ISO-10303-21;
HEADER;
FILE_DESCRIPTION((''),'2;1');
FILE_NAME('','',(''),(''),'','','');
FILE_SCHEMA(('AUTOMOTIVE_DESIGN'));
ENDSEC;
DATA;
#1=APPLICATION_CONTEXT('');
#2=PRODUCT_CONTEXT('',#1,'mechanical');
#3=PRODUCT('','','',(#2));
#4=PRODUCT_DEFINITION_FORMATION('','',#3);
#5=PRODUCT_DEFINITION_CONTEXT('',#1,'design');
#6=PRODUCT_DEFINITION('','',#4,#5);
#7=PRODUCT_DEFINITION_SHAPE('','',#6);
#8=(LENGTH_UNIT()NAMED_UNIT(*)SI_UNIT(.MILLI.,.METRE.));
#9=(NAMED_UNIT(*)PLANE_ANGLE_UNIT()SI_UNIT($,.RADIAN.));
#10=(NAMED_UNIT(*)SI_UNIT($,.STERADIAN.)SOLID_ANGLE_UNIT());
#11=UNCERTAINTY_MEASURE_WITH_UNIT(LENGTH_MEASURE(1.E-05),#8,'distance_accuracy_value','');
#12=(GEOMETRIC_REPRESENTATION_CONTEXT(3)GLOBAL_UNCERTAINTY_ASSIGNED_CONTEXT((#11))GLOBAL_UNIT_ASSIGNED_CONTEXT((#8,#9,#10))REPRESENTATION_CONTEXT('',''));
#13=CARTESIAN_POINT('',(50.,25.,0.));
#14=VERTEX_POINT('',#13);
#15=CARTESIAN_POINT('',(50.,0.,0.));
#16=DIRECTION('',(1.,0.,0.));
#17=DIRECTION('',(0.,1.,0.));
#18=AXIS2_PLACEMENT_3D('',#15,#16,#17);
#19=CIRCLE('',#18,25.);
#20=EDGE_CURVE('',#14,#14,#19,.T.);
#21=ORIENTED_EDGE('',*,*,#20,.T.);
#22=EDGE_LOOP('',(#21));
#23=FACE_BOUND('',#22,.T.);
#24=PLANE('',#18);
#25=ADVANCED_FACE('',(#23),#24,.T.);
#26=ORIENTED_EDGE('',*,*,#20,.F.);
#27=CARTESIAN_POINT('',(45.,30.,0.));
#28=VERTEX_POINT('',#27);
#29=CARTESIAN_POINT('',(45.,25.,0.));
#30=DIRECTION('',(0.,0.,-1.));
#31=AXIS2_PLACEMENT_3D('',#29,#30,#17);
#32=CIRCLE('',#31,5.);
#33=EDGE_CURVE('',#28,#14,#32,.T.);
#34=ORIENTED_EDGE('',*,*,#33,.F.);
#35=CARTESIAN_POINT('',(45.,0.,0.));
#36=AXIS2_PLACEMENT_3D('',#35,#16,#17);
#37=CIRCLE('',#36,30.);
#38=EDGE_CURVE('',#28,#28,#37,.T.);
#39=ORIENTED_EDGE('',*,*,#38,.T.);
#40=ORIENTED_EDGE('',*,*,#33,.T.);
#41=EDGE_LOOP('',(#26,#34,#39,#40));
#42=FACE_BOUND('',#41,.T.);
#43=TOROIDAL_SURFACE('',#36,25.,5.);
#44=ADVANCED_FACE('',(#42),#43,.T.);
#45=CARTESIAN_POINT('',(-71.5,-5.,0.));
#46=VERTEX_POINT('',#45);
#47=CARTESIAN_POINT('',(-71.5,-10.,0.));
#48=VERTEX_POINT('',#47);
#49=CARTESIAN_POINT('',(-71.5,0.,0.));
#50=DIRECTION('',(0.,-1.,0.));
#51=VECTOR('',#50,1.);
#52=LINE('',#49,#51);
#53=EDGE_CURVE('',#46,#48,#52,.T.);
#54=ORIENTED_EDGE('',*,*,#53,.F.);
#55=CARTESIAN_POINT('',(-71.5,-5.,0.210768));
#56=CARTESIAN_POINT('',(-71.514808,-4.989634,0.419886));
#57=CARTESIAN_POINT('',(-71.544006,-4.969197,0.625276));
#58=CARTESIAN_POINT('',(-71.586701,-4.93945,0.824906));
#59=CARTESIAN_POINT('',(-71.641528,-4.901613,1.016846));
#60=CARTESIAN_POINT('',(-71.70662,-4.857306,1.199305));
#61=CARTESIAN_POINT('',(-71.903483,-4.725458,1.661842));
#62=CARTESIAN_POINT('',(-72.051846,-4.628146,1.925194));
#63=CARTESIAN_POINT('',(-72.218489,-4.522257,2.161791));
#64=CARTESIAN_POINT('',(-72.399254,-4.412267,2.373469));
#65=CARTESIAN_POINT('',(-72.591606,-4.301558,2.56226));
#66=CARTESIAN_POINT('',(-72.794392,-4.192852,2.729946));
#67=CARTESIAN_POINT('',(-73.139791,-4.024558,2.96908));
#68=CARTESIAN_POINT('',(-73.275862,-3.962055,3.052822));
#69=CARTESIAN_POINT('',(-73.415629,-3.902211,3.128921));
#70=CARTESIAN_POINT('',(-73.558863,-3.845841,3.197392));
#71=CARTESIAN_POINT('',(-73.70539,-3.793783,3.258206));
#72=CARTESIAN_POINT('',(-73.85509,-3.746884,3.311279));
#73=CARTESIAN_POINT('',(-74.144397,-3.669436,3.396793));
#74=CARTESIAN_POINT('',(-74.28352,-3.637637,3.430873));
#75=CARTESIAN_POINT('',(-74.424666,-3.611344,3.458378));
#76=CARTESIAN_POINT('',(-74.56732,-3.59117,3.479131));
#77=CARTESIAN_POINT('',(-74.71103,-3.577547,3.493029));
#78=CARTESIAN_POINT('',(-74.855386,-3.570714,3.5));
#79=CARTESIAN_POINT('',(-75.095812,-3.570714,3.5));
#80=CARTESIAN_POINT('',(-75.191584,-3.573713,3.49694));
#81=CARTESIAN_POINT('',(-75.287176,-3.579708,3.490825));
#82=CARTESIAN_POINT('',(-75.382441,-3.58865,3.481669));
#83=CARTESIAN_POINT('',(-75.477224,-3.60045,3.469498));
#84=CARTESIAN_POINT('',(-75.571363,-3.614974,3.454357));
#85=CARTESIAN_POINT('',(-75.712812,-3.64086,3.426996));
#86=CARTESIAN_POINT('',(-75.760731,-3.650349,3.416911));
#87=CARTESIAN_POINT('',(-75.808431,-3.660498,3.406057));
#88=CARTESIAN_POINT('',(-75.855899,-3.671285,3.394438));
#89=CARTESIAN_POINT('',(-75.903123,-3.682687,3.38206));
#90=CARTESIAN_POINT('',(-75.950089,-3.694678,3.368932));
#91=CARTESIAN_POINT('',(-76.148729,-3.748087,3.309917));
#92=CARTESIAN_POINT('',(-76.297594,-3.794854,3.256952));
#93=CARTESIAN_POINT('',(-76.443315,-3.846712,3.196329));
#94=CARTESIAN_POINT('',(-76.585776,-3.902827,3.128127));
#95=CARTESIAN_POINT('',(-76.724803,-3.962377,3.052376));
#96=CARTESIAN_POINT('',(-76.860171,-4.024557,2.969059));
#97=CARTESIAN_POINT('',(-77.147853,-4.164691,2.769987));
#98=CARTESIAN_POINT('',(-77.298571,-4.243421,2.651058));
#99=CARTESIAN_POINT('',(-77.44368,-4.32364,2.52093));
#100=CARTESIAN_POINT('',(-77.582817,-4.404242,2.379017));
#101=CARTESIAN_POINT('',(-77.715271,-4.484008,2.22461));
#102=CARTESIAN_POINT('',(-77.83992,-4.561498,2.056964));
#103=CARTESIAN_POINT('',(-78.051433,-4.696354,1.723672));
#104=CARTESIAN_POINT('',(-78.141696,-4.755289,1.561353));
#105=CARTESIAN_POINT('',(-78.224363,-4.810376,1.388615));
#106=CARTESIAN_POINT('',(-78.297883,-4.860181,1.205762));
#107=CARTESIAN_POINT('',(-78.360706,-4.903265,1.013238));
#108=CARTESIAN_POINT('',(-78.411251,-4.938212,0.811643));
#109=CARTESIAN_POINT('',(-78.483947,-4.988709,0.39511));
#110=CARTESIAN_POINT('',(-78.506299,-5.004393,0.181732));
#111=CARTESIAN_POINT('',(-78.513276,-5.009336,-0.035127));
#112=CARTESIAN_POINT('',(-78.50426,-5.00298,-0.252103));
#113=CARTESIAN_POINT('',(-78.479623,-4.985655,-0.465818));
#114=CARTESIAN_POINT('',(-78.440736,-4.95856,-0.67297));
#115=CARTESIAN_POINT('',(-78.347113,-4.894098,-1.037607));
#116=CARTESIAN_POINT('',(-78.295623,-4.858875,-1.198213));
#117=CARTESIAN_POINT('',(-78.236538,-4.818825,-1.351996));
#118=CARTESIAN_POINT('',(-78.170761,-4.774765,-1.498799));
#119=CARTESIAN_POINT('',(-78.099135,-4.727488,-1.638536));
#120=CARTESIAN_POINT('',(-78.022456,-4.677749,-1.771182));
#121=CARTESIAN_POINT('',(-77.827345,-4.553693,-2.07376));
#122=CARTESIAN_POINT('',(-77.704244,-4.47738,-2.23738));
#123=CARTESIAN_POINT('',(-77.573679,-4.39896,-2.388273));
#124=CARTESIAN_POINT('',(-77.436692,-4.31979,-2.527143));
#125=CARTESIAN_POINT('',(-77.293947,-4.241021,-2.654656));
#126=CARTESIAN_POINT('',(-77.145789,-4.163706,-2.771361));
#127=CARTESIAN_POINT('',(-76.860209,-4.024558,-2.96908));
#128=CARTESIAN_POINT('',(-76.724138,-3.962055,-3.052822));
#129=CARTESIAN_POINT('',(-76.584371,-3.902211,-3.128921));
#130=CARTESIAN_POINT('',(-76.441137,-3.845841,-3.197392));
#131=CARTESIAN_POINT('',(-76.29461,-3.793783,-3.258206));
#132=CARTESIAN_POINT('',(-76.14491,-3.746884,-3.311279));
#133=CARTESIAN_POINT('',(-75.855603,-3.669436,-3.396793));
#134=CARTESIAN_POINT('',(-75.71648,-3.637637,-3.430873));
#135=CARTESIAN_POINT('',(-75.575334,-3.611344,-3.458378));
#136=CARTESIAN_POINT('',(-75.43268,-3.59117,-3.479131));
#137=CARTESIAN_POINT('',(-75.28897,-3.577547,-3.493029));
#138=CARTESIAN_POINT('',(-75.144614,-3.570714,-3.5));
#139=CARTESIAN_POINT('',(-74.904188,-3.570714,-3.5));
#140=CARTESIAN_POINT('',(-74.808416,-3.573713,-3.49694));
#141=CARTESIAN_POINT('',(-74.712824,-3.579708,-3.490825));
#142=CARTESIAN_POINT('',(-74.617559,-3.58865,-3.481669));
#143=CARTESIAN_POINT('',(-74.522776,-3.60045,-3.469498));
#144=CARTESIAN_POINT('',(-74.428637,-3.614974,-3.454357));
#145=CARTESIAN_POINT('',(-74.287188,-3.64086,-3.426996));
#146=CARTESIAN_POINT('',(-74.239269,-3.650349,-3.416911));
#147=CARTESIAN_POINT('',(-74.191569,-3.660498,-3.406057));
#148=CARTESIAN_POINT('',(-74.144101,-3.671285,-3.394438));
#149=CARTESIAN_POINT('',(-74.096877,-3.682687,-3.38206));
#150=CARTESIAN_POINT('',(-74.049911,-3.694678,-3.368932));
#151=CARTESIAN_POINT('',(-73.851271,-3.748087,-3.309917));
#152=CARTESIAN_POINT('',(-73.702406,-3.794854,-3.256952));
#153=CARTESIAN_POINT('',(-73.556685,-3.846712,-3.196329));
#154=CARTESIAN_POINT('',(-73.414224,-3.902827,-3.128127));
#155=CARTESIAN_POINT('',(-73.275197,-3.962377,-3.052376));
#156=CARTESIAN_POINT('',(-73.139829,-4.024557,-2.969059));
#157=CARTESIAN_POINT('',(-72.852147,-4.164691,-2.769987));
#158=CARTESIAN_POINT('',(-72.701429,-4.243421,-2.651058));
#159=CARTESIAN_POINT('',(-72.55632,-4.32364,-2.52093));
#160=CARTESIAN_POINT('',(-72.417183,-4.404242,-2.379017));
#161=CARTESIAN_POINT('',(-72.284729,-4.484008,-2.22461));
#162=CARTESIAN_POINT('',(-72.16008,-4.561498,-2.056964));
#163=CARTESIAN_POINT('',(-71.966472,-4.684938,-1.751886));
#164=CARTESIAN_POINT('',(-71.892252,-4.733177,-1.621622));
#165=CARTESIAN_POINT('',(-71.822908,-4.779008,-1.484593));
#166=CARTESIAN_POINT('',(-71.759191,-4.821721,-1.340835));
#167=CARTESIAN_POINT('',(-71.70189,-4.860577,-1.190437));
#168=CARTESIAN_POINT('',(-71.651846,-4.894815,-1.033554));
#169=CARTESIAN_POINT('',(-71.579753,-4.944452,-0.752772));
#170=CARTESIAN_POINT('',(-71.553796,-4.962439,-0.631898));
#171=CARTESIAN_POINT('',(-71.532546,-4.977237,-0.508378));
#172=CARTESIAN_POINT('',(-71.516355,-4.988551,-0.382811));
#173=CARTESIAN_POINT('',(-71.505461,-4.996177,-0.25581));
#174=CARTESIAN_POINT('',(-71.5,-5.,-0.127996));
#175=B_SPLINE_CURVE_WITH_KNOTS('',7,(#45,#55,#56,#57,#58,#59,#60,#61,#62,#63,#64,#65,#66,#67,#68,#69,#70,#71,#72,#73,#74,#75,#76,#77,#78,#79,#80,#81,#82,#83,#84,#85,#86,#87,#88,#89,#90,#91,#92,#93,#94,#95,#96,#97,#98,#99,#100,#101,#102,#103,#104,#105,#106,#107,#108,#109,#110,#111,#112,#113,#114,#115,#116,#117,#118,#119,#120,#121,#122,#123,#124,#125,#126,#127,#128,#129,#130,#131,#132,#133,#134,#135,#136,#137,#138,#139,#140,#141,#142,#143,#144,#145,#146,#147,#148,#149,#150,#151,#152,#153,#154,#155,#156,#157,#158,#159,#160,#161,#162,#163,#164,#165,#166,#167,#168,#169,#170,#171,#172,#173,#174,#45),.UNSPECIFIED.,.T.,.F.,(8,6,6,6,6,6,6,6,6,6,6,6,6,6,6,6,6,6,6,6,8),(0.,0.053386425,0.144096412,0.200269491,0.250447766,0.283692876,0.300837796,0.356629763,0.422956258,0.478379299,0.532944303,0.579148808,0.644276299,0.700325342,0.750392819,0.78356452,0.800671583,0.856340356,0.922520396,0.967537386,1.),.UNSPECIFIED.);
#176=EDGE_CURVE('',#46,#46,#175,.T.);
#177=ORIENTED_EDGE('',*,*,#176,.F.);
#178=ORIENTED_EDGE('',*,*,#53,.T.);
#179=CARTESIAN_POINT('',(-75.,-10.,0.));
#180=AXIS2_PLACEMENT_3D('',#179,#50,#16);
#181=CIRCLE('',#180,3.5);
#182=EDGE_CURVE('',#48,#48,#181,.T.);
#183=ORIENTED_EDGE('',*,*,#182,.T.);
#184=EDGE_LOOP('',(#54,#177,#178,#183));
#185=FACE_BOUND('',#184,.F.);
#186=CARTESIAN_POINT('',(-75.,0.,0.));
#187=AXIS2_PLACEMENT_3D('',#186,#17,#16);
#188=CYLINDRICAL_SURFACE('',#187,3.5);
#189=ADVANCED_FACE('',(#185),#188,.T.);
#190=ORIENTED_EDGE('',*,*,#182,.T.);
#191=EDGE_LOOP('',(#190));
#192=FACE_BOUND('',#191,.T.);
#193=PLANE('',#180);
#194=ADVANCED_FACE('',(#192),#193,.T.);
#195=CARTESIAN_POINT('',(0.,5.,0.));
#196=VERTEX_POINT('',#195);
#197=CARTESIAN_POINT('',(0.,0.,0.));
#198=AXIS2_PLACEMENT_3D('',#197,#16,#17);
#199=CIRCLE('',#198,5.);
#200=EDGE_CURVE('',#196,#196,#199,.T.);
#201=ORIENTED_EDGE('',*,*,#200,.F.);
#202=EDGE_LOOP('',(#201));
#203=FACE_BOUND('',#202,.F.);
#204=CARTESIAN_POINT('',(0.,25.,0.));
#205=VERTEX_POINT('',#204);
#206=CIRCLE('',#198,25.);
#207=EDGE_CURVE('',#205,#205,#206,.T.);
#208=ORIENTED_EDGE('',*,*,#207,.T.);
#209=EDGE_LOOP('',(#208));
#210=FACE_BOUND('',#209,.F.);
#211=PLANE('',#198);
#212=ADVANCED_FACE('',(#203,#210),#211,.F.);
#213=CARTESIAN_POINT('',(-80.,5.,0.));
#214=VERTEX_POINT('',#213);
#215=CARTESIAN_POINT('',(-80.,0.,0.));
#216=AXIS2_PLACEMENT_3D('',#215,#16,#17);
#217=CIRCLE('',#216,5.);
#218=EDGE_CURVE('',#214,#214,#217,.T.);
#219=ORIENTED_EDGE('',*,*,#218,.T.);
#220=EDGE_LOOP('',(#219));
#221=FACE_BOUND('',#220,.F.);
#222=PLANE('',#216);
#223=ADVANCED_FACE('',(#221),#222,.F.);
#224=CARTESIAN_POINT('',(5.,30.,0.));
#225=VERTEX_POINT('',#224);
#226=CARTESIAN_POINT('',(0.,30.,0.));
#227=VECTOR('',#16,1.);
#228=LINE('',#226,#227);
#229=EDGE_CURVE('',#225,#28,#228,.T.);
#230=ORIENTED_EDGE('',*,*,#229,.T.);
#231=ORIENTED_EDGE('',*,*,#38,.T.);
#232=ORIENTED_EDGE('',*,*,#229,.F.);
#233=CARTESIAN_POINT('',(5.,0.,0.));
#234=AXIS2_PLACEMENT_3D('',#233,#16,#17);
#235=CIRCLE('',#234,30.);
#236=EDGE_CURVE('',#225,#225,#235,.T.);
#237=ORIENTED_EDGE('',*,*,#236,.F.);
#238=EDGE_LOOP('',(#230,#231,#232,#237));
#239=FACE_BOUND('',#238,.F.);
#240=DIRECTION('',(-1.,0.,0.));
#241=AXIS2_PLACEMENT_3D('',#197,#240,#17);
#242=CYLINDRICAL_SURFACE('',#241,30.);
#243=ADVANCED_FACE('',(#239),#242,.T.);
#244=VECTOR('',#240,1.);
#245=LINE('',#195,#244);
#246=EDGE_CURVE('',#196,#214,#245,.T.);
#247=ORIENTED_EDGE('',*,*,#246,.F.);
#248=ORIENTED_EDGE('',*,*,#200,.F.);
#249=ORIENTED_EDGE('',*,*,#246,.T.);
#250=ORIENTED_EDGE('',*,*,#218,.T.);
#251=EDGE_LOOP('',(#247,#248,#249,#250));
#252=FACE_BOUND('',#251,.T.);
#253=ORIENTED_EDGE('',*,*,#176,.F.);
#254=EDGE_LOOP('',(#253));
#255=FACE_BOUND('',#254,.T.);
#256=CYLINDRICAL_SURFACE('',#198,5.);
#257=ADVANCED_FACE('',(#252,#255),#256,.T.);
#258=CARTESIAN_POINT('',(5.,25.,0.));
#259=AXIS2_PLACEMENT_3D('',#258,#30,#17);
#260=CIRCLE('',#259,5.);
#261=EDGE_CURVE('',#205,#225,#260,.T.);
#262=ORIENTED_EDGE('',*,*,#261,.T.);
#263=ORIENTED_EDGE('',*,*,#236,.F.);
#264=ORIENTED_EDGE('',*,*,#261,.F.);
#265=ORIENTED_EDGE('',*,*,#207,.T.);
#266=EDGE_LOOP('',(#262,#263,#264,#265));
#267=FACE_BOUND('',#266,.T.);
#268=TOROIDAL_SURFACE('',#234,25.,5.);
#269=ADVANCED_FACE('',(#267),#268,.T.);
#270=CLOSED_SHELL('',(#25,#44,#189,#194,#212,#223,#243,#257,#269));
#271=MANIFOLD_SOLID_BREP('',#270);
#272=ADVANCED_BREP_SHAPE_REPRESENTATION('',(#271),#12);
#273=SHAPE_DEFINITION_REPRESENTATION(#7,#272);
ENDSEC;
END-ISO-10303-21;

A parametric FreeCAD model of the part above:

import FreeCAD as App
import Part
import Sketcher
from FreeCAD import Vector


def edges_at(feature, points):
    """Names of the edges that pass closest to the given points."""
    edges = feature.Shape.Edges
    near = lambda p: min(range(len(edges)), key=lambda i: edges[i].distToShape(Part.Vertex(*p))[0])
    return sorted({f"Edge{near(p) + 1}" for p in points})

doc = App.newDocument("Part")
params = doc.addObject("Spreadsheet::Sheet", "Params")
for row, (alias, value) in enumerate([
    ("sketch1_diameter", "60 mm"),
    ("pad1_length", "50 mm"),
    ("sketch2_diameter", "10 mm"),
    ("pad2_length", "80 mm"),
    ("sketch3_diameter", "7 mm"),
    ("pad3_length", "10 mm"),
    ("fillet_radius", "5 mm"),
], start=1):
    params.set(f"A{row}", alias)
    params.set(f"B{row}", "=" + value)
    params.setAlias(f"B{row}", alias)

body = doc.addObject("PartDesign::Body", "Body")

# Sketch on YZ plane
sketch1 = body.newObject("Sketcher::SketchObject", "Sketch")
sketch1.AttachmentSupport = (doc.getObject("YZ_Plane"), [""])
sketch1.MapMode = "FlatFace"
sketch1.addGeometry(Part.Circle(Vector(0, 0, 0), Vector(0, 0, 1), 30), False)
sketch1.addConstraint([
    Sketcher.Constraint("Coincident", 0, 3, -1, 1),
    Sketcher.Constraint("Diameter", 0, 60.0),
])
sketch1.setExpression("Constraints[1]", "Params.sketch1_diameter")
pad1 = body.newObject("PartDesign::Pad", "Pad")
pad1.Profile = sketch1
pad1.setExpression("Length", "Params.pad1_length")

# Sketch on YZ plane
sketch2 = body.newObject("Sketcher::SketchObject", "Sketch001")
sketch2.AttachmentSupport = (doc.getObject("YZ_Plane"), [""])
sketch2.MapMode = "FlatFace"
sketch2.addGeometry(Part.Circle(Vector(0, 0, 0), Vector(0, 0, 1), 5), False)
sketch2.addConstraint([
    Sketcher.Constraint("Coincident", 0, 3, -1, 1),
    Sketcher.Constraint("Diameter", 0, 10.0),
])
sketch2.setExpression("Constraints[1]", "Params.sketch2_diameter")
pad2 = body.newObject("PartDesign::Pad", "Pad001")
pad2.Profile = sketch2
pad2.setExpression("Length", "Params.pad2_length")
pad2.Reversed = True

# Sketch on XZ plane
sketch3 = body.newObject("Sketcher::SketchObject", "Sketch002")
sketch3.AttachmentSupport = (doc.getObject("XZ_Plane"), [""])
sketch3.MapMode = "FlatFace"
sketch3.addGeometry(Part.Circle(Vector(-75, 0, 0), Vector(0, 0, 1), 3.5), False)
sketch3.addConstraint([
    Sketcher.Constraint("PointOnObject", 0, 3, -1),
    Sketcher.Constraint("Diameter", 0, 7.0),
    Sketcher.Constraint("DistanceX", 0, 3, -1, 1, 75.0),
])
sketch3.setExpression("Constraints[1]", "Params.sketch3_diameter")
pad3 = body.newObject("PartDesign::Pad", "Pad002")
pad3.Profile = sketch3
pad3.setExpression("Length", "Params.pad3_length")
doc.recompute()

fillet = body.newObject("PartDesign::Fillet", "Fillet")
fillet.Base = (pad3, edges_at(pad3, [(50, -30, 0), (0, -30, 0)]))
fillet.setExpression("Radius", "Params.fillet_radius")

doc.recompute()
